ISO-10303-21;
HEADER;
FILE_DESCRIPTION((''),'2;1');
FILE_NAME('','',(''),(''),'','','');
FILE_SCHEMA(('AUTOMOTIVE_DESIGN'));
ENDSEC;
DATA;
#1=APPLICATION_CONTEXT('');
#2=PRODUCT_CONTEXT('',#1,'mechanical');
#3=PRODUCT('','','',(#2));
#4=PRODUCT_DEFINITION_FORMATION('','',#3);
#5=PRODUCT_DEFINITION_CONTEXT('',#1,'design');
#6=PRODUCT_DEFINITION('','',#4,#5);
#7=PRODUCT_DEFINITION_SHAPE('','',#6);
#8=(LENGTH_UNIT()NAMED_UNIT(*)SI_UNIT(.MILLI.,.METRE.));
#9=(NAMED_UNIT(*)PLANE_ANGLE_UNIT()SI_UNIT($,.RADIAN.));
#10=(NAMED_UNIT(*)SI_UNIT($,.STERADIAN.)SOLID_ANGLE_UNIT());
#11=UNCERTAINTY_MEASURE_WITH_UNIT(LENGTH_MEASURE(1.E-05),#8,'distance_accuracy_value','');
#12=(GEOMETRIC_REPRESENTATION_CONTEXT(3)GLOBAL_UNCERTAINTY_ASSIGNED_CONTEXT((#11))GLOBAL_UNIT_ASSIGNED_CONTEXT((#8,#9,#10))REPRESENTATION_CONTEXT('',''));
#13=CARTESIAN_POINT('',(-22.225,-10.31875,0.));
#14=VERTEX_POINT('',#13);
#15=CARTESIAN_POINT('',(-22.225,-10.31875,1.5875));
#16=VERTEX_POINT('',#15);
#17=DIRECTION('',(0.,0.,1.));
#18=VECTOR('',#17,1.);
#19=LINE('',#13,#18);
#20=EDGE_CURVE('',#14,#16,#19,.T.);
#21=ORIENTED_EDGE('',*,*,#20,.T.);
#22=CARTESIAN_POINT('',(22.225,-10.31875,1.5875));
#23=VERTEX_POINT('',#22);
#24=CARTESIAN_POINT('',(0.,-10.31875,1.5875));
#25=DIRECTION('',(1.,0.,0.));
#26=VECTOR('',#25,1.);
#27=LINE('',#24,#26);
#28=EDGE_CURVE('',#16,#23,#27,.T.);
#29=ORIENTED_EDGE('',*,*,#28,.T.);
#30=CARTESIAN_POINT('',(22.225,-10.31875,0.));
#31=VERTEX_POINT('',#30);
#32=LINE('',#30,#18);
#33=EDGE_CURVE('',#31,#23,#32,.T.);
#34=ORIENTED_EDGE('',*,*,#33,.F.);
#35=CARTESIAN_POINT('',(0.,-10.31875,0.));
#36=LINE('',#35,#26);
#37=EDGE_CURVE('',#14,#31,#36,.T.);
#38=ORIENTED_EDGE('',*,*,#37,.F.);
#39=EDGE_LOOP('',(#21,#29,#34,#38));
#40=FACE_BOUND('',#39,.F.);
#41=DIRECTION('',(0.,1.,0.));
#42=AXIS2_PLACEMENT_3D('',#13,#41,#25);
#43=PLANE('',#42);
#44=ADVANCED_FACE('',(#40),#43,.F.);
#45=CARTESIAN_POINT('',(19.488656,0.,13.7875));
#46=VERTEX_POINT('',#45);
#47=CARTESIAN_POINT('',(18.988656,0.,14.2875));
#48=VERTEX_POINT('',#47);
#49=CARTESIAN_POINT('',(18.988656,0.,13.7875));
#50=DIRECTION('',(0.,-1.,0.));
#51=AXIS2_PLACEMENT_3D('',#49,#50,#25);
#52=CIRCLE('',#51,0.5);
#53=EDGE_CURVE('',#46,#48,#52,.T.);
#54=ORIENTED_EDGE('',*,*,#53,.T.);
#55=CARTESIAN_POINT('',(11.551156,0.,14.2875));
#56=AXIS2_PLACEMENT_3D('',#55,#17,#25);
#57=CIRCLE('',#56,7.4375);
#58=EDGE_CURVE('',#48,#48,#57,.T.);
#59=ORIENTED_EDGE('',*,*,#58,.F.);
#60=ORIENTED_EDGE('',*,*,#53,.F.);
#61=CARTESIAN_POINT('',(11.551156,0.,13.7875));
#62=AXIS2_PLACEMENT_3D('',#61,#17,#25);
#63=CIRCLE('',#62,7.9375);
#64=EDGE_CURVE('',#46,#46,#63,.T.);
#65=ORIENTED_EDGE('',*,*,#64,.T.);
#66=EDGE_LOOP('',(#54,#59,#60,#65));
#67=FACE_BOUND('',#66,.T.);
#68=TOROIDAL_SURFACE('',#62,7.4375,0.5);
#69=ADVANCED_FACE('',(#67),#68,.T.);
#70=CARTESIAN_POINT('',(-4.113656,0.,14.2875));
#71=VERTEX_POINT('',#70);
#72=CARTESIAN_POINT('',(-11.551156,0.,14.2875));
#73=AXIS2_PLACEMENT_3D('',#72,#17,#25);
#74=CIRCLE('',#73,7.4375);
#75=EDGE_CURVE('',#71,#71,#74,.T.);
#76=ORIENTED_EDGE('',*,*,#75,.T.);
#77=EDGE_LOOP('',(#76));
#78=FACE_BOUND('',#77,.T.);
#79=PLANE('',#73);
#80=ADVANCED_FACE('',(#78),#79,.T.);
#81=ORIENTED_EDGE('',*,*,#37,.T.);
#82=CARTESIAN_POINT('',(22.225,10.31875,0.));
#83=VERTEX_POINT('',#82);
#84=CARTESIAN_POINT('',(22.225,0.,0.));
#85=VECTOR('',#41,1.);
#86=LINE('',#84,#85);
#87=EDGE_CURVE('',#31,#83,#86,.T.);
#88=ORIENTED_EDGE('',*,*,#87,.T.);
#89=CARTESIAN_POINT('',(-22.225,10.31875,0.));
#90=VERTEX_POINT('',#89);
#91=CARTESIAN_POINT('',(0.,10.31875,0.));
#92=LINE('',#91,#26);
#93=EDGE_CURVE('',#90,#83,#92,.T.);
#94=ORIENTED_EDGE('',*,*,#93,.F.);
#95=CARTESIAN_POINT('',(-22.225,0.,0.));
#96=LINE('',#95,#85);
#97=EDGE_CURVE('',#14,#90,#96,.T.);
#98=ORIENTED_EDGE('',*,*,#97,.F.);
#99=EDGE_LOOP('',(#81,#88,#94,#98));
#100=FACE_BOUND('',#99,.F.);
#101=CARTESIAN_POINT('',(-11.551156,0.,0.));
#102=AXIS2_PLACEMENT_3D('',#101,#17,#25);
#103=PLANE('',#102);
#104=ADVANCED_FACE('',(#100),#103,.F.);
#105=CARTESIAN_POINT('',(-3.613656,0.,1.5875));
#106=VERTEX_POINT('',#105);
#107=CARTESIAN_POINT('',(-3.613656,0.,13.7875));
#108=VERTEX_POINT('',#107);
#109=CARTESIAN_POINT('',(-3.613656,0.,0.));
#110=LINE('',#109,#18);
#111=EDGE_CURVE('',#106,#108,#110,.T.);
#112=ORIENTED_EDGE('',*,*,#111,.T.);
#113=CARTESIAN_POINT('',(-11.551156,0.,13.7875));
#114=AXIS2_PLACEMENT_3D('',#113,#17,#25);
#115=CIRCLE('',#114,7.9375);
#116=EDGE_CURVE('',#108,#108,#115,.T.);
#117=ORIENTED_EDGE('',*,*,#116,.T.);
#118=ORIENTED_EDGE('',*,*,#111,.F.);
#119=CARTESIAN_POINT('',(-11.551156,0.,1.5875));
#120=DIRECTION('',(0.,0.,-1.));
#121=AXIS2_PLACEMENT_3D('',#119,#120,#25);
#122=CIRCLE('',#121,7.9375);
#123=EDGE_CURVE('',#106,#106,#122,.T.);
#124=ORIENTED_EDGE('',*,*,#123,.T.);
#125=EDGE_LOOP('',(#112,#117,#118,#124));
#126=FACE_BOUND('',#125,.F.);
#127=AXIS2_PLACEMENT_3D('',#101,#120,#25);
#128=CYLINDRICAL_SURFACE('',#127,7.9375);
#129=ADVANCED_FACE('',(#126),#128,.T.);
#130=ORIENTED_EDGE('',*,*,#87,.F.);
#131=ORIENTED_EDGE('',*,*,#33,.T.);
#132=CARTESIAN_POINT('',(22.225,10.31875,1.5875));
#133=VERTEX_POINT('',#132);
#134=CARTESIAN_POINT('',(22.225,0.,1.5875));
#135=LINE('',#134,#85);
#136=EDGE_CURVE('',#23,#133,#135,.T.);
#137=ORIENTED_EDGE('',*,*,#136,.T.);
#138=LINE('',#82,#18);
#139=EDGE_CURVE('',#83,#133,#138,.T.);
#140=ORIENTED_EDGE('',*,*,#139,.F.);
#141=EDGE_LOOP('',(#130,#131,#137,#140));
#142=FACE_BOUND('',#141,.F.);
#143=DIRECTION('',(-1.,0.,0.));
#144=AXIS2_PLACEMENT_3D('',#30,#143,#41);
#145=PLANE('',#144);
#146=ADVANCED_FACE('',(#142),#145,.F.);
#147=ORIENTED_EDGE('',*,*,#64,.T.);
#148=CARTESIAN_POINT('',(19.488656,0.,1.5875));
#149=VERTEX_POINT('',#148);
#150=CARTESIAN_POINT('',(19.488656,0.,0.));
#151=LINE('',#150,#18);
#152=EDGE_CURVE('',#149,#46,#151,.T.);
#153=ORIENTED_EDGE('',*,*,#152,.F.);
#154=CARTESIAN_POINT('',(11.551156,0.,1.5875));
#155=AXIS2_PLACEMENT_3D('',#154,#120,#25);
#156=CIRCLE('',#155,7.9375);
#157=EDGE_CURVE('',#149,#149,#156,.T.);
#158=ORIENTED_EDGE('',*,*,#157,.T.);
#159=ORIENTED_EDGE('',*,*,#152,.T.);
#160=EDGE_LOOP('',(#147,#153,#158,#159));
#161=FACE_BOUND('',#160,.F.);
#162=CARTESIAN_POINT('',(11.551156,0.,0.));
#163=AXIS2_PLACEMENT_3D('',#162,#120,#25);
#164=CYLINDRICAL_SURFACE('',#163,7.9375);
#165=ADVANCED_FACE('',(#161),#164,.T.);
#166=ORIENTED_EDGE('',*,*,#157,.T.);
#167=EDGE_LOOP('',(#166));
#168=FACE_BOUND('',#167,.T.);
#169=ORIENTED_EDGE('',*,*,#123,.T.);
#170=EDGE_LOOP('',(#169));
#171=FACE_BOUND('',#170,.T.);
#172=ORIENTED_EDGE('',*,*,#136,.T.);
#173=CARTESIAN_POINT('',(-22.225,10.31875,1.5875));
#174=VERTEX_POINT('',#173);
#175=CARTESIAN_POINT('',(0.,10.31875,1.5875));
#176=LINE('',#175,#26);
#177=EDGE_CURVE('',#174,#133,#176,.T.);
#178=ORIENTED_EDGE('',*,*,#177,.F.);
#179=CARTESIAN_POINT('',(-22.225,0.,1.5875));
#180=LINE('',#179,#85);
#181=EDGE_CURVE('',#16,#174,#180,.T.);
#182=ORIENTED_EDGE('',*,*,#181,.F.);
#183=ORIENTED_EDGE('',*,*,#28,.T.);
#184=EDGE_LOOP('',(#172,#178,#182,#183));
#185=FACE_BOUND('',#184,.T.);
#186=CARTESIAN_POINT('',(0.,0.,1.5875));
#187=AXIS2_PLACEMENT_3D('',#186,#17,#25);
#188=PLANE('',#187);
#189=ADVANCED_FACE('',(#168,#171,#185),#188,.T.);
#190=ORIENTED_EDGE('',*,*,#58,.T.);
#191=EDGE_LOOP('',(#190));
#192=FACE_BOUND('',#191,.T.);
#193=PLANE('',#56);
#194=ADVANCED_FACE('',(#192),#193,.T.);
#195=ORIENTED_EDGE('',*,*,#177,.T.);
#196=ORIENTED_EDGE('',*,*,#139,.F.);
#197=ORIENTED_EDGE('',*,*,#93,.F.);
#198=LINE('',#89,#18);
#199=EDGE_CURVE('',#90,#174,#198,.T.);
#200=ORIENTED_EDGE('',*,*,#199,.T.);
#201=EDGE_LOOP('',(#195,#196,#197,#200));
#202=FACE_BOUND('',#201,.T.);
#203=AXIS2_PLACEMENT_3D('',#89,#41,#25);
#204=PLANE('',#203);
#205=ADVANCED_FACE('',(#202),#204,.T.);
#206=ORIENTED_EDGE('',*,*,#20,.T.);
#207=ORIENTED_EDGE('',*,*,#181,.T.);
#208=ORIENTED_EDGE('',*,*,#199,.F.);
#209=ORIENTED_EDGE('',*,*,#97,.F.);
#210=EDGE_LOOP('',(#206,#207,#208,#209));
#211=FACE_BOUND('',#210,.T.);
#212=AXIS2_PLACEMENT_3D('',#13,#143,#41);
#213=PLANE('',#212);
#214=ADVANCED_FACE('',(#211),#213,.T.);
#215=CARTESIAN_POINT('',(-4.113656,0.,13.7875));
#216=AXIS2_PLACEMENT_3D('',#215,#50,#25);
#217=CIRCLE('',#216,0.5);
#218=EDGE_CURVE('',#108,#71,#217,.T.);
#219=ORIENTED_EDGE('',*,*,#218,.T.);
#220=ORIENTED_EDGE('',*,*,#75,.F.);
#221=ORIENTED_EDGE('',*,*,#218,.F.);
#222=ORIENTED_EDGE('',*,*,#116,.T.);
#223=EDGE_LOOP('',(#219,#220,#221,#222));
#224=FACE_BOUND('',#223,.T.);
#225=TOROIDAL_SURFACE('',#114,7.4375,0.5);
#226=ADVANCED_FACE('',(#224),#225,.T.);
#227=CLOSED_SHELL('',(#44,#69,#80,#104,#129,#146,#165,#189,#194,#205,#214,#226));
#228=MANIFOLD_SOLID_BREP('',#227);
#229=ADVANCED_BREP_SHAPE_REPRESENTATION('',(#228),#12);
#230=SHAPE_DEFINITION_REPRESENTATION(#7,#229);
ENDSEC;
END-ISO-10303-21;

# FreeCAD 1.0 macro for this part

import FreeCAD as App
import Part
import Sketcher

V = App.Vector
Q = App.Units.Quantity


def edges_at(feature, points):
    """Names of the edges that pass closest to the given points."""
    edges = feature.Shape.Edges
    near = lambda p: min(range(len(edges)), key=lambda i: edges[i].distToShape(Part.Vertex(*p))[0])
    return sorted({f"Edge{near(p) + 1}" for p in points})

doc = App.newDocument("Part")
params = doc.addObject("Spreadsheet::Sheet", "Params")
for row, (alias, value) in enumerate([
    ("sketch1_width", "1.75 in"),
    ("sketch1_height", "0.8125 in"),
    ("pad1_length", "0.0625 in"),
    ("sketch2_diameter", "0.625 in"),
    ("pad2_length", "0.5625 in"),
    ("fillet_radius", "0.5 mm"),
], start=1):
    params.set(f"A{row}", alias)
    params.set(f"B{row}", "=" + value)
    params.setAlias(f"B{row}", alias)

body = doc.addObject("PartDesign::Body", "Body")

sketch1 = body.newObject("Sketcher::SketchObject", "Sketch")
sketch1.AttachmentSupport = (doc.getObject("XY_Plane"), [""])
sketch1.MapMode = "FlatFace"
sketch1.addGeometry([
    Part.LineSegment(V(-22, 10, 0), V(-22, -10, 0)),
    Part.LineSegment(V(-22, -10, 0), V(22, -10, 0)),
    Part.LineSegment(V(22, -10, 0), V(22, 10, 0)),
    Part.LineSegment(V(22, 10, 0), V(-22, 10, 0)),
], False)
sketch1.addConstraint([
    Sketcher.Constraint("Coincident", 0, 2, 1, 1),
    Sketcher.Constraint("Coincident", 1, 2, 2, 1),
    Sketcher.Constraint("Coincident", 2, 2, 3, 1),
    Sketcher.Constraint("Coincident", 3, 2, 0, 1),
    Sketcher.Constraint("Vertical", 0),
    Sketcher.Constraint("Horizontal", 1),
    Sketcher.Constraint("Vertical", 2),
    Sketcher.Constraint("Horizontal", 3),
    Sketcher.Constraint("Symmetric", 0, 2, 2, 2, -1, 1),
    Sketcher.Constraint("DistanceX", 1, 1, 1, 2, Q("1.75 in")),
    Sketcher.Constraint("DistanceY", 0, 2, 0, 1, Q("0.8125 in")),
])
sketch1.setExpression("Constraints[9]", "Params.sketch1_width")
sketch1.setExpression("Constraints[10]", "Params.sketch1_height")
pad1 = body.newObject("PartDesign::Pad", "Pad")
pad1.Profile = sketch1
pad1.setExpression("Length", "Params.pad1_length")

sketch2 = body.newObject("Sketcher::SketchObject", "Sketch001")
sketch2.AttachmentSupport = (doc.getObject("XY_Plane"), [""])
sketch2.MapMode = "FlatFace"
sketch2.addGeometry([
    Part.Circle(V(-12, 0, 0), V(0, 0, 1), 8),
    Part.Circle(V(12, 0, 0), V(0, 0, 1), 8),
], False)
sketch2.addConstraint([
    Sketcher.Constraint("Equal", 0, 1),
    Sketcher.Constraint("Symmetric", 0, 3, 1, 3, -1, 1),
    Sketcher.Constraint("PointOnObject", 0, 3, -1),
    Sketcher.Constraint("Diameter", 0, Q("0.625 in")),
    Sketcher.Constraint("DistanceX", 0, 3, -1, 1, Q("11.551156 mm")),
])
sketch2.setExpression("Constraints[3]", "Params.sketch2_diameter")
pad2 = body.newObject("PartDesign::Pad", "Pad001")
pad2.Profile = sketch2
pad2.setExpression("Length", "Params.pad2_length")
doc.recompute()

fillet = body.newObject("PartDesign::Fillet", "Fillet")
fillet.Base = (pad2, edges_at(pad2, [(-19.489, 0, 14.287), (3.614, 0, 14.287)]))
fillet.setExpression("Radius", "Params.fillet_radius")

doc.recompute()
